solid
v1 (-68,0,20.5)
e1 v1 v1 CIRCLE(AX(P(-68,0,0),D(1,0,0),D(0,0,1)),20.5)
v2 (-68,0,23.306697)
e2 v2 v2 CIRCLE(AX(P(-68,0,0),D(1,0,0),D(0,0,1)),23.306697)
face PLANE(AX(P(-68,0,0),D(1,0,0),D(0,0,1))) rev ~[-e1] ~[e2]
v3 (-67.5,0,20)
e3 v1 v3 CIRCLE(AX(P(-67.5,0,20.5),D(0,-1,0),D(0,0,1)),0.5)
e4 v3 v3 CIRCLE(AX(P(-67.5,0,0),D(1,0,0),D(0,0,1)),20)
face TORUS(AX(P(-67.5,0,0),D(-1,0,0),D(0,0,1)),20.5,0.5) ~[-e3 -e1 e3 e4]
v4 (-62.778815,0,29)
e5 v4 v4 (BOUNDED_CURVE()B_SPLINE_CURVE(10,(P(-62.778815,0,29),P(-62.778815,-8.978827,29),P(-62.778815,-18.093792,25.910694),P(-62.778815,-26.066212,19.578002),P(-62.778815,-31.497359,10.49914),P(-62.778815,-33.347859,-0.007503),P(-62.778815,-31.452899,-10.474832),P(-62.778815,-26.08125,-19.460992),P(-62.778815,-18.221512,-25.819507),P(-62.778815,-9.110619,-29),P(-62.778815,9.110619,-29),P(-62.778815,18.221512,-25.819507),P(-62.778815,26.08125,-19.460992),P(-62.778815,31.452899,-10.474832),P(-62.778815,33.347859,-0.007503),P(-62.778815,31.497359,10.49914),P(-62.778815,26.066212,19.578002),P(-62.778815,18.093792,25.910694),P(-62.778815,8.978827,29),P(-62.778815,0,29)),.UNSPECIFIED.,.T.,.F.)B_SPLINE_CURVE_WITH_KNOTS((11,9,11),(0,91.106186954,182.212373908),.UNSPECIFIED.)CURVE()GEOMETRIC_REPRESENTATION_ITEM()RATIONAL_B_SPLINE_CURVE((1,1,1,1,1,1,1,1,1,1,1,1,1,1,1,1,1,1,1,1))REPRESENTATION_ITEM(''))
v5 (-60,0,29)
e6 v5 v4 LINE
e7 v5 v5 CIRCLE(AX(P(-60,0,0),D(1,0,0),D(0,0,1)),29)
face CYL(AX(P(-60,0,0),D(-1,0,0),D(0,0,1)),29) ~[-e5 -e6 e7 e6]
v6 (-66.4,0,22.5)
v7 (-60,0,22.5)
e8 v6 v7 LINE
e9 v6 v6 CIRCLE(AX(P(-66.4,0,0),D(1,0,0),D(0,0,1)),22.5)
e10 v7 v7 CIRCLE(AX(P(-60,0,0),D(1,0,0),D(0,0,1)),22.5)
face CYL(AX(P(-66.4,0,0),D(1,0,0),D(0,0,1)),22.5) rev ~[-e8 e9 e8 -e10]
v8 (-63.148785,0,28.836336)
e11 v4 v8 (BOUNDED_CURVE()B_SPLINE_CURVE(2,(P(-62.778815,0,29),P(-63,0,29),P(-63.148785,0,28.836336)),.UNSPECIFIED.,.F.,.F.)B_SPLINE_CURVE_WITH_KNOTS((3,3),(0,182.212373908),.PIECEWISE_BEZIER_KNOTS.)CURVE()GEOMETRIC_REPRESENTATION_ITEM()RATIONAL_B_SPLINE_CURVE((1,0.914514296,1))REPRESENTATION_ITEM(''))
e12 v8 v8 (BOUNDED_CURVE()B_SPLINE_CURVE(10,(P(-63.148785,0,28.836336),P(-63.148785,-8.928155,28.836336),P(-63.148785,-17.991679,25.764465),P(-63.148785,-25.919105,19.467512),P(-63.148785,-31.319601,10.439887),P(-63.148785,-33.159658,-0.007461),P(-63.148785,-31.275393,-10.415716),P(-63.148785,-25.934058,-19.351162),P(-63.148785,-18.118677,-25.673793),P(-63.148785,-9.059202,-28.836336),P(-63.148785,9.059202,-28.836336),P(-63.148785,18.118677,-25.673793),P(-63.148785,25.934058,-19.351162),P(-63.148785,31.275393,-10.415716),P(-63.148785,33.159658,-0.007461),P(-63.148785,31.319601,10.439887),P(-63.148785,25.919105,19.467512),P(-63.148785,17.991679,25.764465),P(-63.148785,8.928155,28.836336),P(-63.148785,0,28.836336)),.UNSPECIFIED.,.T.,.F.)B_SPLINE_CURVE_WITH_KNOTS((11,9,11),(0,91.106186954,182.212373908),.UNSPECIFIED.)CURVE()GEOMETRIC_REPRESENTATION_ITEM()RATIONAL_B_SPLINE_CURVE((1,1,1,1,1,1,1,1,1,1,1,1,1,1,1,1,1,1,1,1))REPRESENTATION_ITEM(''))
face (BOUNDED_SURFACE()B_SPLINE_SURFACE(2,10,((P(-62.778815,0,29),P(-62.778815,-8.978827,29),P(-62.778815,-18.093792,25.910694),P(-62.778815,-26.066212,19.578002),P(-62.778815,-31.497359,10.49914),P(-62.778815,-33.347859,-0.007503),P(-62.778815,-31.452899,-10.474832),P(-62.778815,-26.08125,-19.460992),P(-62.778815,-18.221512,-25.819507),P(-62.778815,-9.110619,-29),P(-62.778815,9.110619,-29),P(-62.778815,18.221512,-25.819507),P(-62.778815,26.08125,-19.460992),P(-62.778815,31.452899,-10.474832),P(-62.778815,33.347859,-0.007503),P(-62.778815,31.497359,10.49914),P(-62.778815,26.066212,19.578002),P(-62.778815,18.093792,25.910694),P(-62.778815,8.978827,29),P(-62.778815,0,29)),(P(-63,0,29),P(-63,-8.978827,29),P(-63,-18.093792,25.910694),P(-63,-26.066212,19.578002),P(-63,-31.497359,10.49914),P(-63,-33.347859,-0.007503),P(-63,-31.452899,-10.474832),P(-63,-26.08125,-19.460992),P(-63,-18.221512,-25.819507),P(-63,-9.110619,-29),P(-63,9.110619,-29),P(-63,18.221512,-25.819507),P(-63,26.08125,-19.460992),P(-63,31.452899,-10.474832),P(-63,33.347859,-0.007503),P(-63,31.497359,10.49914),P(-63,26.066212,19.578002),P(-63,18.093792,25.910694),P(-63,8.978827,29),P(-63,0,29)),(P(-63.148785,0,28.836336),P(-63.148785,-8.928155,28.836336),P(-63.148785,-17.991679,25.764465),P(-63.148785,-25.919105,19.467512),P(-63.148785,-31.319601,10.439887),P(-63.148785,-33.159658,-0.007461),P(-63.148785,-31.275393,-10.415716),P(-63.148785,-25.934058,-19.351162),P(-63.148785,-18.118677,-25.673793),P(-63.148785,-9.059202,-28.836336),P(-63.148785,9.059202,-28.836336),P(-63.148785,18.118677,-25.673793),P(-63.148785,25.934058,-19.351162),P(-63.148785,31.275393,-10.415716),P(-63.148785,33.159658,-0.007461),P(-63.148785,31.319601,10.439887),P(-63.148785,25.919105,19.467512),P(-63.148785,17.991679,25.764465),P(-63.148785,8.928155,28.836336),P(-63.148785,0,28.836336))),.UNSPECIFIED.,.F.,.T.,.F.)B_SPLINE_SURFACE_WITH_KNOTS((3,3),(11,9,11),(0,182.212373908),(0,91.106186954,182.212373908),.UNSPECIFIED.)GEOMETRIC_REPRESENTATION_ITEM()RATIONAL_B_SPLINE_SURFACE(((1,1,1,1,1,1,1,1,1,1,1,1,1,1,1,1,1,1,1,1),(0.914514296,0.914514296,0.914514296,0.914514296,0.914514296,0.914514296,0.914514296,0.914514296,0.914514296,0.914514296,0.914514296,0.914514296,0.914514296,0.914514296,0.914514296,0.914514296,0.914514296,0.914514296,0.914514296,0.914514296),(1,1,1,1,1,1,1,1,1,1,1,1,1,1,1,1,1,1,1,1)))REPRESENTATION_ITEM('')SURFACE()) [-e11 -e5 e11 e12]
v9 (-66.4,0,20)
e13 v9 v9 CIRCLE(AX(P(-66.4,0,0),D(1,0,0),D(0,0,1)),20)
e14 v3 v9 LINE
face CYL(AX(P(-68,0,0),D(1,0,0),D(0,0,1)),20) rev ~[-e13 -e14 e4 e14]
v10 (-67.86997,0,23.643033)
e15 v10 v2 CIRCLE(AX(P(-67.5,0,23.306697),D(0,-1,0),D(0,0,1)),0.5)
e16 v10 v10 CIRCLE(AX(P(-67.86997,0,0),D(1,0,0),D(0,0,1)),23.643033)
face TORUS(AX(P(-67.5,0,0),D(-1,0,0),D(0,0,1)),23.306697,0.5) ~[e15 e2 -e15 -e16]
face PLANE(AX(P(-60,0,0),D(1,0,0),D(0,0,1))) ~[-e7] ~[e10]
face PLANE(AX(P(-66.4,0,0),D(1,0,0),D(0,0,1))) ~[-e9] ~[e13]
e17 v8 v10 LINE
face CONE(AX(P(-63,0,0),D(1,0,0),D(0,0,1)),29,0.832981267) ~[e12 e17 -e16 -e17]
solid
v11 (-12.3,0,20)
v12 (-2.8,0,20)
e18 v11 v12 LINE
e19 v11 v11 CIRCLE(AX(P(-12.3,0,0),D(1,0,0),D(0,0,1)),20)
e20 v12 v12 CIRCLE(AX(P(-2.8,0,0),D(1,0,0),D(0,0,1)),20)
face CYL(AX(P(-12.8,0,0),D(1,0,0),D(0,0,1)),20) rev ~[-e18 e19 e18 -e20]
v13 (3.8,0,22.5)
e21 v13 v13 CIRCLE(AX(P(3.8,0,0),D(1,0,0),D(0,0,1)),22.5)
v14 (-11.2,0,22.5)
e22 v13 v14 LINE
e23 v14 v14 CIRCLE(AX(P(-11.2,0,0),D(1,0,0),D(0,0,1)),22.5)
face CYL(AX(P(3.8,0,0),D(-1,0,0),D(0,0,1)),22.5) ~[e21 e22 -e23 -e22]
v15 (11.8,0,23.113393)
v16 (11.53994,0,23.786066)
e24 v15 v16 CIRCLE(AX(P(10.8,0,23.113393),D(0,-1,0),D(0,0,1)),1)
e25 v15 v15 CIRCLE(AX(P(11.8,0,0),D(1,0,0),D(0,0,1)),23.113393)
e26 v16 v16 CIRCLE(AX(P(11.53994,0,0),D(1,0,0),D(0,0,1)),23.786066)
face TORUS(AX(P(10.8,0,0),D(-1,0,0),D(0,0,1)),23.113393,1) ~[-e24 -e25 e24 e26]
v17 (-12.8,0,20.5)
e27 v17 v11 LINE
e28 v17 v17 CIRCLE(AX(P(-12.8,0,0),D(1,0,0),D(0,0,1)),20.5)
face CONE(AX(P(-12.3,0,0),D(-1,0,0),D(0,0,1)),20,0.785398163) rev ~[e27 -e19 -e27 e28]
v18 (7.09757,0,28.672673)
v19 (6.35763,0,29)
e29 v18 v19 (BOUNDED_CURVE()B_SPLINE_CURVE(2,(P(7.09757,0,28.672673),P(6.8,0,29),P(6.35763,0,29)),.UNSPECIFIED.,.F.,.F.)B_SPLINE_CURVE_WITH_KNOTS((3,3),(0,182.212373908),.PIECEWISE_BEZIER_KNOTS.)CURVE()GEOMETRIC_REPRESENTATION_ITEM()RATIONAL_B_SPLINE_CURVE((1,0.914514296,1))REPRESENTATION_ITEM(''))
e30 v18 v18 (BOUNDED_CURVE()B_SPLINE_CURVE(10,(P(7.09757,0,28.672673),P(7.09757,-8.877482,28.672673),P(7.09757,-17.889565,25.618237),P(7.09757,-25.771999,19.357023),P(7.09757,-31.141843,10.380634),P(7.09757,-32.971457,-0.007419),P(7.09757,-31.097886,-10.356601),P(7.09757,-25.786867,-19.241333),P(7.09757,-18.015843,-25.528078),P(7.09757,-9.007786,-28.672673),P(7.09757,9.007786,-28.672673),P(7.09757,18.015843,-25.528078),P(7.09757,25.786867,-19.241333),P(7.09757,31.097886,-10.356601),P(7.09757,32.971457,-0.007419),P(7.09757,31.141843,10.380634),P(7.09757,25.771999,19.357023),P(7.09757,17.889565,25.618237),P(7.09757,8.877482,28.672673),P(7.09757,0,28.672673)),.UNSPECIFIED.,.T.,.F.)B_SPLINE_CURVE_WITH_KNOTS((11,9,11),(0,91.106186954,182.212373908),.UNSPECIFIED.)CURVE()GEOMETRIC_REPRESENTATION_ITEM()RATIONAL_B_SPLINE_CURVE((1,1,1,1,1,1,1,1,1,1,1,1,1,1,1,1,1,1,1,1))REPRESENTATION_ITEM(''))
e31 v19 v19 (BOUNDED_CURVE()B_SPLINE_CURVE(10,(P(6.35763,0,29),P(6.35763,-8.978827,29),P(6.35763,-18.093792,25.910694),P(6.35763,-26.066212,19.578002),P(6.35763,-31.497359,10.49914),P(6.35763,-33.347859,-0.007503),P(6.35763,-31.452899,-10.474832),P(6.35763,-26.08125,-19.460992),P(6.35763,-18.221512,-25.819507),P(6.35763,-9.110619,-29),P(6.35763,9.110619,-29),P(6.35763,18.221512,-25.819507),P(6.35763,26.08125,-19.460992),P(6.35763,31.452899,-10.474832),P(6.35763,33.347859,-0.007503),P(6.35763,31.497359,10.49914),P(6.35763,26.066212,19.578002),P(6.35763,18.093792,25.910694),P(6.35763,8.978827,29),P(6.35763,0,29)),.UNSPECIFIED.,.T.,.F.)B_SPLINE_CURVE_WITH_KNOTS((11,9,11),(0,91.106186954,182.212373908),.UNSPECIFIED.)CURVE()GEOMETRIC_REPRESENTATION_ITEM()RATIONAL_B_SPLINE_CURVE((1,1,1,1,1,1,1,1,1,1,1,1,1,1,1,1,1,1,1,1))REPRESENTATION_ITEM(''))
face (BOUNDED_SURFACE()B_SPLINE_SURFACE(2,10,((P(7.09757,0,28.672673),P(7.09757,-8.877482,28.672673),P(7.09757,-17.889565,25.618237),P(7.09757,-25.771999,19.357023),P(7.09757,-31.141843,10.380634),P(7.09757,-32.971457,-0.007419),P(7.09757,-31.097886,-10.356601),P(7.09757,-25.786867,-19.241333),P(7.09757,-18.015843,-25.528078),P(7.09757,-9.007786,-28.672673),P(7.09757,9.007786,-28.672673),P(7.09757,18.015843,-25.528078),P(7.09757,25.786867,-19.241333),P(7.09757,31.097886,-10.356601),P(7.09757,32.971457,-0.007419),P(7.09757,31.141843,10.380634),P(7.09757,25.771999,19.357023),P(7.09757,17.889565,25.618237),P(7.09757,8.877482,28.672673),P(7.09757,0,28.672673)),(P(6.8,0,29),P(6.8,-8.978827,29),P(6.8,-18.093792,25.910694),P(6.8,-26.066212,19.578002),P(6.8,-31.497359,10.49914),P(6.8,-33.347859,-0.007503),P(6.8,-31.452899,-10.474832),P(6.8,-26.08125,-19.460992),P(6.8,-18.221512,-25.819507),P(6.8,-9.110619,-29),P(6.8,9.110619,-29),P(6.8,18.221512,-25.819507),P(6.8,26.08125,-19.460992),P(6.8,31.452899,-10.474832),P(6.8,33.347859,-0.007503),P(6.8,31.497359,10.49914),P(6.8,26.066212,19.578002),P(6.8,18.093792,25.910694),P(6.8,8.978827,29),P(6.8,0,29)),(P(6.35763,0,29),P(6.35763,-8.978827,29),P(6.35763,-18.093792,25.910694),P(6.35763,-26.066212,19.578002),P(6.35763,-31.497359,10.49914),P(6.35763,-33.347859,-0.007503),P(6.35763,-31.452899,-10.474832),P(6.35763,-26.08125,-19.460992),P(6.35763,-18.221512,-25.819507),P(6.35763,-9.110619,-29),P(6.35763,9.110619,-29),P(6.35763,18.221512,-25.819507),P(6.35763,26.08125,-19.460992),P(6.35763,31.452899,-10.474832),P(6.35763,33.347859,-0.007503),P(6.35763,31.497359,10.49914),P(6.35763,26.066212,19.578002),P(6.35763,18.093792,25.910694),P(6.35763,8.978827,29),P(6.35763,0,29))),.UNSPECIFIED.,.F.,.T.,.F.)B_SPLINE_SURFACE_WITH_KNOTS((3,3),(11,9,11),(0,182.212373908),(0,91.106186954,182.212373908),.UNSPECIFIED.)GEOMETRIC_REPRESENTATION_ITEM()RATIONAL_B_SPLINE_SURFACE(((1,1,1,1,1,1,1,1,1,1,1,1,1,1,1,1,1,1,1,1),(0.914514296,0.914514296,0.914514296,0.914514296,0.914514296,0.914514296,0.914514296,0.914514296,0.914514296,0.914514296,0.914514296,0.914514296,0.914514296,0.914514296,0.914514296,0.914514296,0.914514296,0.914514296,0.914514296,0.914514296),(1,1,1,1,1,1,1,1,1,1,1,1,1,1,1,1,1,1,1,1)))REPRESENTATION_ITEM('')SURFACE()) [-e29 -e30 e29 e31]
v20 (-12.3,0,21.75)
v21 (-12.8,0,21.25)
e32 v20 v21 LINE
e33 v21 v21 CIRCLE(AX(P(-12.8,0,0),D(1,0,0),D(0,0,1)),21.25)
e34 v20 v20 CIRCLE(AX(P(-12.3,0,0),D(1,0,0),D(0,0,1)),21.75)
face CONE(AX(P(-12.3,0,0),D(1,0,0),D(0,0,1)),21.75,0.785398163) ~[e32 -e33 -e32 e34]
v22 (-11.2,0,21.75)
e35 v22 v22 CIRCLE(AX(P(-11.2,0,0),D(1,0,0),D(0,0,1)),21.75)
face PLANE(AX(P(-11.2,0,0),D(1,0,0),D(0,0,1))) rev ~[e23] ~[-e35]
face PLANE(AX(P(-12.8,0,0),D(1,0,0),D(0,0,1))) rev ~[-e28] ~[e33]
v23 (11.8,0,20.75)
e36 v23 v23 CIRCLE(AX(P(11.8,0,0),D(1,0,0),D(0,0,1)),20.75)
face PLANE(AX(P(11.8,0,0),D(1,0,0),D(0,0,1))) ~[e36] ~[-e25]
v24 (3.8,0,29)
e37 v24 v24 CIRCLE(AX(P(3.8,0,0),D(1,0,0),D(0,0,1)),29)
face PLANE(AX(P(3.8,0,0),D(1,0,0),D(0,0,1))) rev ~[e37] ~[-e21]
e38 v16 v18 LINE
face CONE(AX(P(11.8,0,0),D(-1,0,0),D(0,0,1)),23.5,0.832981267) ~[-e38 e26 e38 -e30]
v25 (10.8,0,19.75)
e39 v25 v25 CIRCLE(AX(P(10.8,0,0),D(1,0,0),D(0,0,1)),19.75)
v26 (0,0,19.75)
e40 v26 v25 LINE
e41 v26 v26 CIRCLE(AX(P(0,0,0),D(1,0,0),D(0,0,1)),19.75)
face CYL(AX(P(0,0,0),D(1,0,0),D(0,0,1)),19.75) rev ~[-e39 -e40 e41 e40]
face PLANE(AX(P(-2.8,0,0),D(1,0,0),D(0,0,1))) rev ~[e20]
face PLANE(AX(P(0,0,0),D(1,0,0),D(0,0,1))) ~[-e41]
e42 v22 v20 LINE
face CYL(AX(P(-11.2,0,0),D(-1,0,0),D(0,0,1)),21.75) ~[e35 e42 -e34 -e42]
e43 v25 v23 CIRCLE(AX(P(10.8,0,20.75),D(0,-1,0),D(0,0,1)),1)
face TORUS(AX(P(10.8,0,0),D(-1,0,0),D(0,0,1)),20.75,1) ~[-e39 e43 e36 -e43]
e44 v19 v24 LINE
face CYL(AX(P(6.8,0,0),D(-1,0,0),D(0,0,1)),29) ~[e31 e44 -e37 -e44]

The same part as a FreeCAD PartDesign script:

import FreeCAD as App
import Part
import Sketcher
from FreeCAD import Vector
Q = App.Units.Quantity


def edges_at(feature, points):
    """Names of the edges that pass closest to the given points."""
    edges = feature.Shape.Edges
    near = lambda p: min(range(len(edges)), key=lambda i: edges[i].distToShape(Part.Vertex(*p))[0])
    return sorted({f"Edge{near(p) + 1}" for p in points})


def add_polygon(sketch, points):
    """Adds a closed chain of lines whose ends are joined by coincident constraints."""
    first, n = sketch.GeometryCount, len(points)
    for a, b in zip(points, points[1:] + points[:1]):
        sketch.addGeometry(Part.LineSegment(App.Vector(*a, 0), App.Vector(*b, 0)), False)
    for i in range(n):
        sketch.addConstraint(Sketcher.Constraint("Coincident", first + i, 2, first + (i + 1) % n, 1))

doc = App.newDocument("Part")
body = doc.addObject("PartDesign::Body", "Body")

sketch1 = body.newObject("Sketcher::SketchObject", "Sketch")
sketch1.AttachmentSupport = (doc.getObject("XZ_Plane"), [""])
sketch1.MapMode = "FlatFace"
add_polygon(sketch1, [(-2.8, 0), (0, 0), (0, 19.8), (11.8, 19.8), (11.8, 23.5), (6.8, 29), (3.8, 29), (3.8, 22.5), (-11.2, 22.5), (-11.2, 21.8), (-12.8, 21.8), (-12.8, 20), (-2.8, 20)])
sketch1.addConstraint([
    Sketcher.Constraint("Horizontal", 0),
    Sketcher.Constraint("Vertical", 1),
    Sketcher.Constraint("Horizontal", 2),
    Sketcher.Constraint("Vertical", 3),
    Sketcher.Constraint("Horizontal", 5),
    Sketcher.Constraint("Vertical", 6),
    Sketcher.Constraint("Horizontal", 7),
    Sketcher.Constraint("Vertical", 8),
    Sketcher.Constraint("Horizontal", 9),
    Sketcher.Constraint("Vertical", 10),
    Sketcher.Constraint("Horizontal", 11),
    Sketcher.Constraint("Vertical", 12),
    Sketcher.Constraint("Coincident", 0, 2, -1, 1),
    Sketcher.Constraint("DistanceX", 5, 2, 5, 1, Q("3 mm")),
    Sketcher.Constraint("DistanceX", 7, 2, 7, 1, Q("15 mm")),
    Sketcher.Constraint("DistanceX", 11, 1, 11, 2, Q("10 mm")),
    Sketcher.Constraint("DistanceY", 12, 2, 12, 1, Q("20 mm")),
    Sketcher.Constraint("DistanceX", 0, 1, 0, 2, Q("2.8 mm")),
    Sketcher.Constraint("DistanceX", 2, 1, 2, 2, Q("11.8 mm")),
    Sketcher.Constraint("DistanceX", 9, 2, 9, 1, Q("1.6 mm")),
    Sketcher.Constraint("DistanceY", 6, 2, 6, 1, Q("6.5 mm")),
    Sketcher.Constraint("DistanceY", -1, 1, 4, 2, Q("29 mm")),
    Sketcher.Constraint("DistanceY", 6, 2, 3, 2, Q("1 mm")),
    Sketcher.Constraint("DistanceY", 1, 2, 8, 2, Q("2 mm")),
    Sketcher.Constraint("DistanceY", 1, 1, 1, 2, Q("19.75 mm")),
])
revolution = body.newObject("PartDesign::Revolution", "Revolution")
revolution.Profile = sketch1
revolution.ReferenceAxis = (sketch1, ["H_Axis"])
revolution.Angle = 360
doc.recompute()

fillet = body.newObject("PartDesign::Fillet", "Fillet")
fillet.Base = (revolution, edges_at(revolution, [(11.8, 0, -23.5), (11.8, 0, -19.75), (6.8, 0, -29)]))
fillet.Radius = 1
doc.recompute()

chamfer = body.newObject("PartDesign::Chamfer", "Chamfer")
chamfer.Base = (fillet, edges_at(fillet, [(-12.8, 0, -21.75), (-12.8, 0, -20)]))
chamfer.Size = 0.5
body2 = doc.addObject("PartDesign::Body", "Body001")

sketch2 = body2.newObject("Sketcher::SketchObject", "Sketch001")
sketch2.AttachmentSupport = (doc.getObject("XZ_Plane001"), [""])
sketch2.MapMode = "FlatFace"
add_polygon(sketch2, [(-66.4, 22.5), (-60, 22.5), (-60, 29), (-63, 29), (-68, 23.5), (-68, 20), (-66.4, 20)])
sketch2.addConstraint([
    Sketcher.Constraint("Horizontal", 0),
    Sketcher.Constraint("Vertical", 1),
    Sketcher.Constraint("Horizontal", 2),
    Sketcher.Constraint("Vertical", 4),
    Sketcher.Constraint("Horizontal", 5),
    Sketcher.Constraint("Vertical", 6),
    Sketcher.Constraint("DistanceX", 2, 2, 2, 1, Q("3 mm")),
    Sketcher.Constraint("DistanceX", 0, 1, 0, 2, Q("6.4 mm")),
    Sketcher.Constraint("DistanceX", 5, 1, 5, 2, Q("1.6 mm")),
    Sketcher.Constraint("DistanceY", 1, 1, 1, 2, Q("6.5 mm")),
    Sketcher.Constraint("DistanceY", 4, 2, 4, 1, Q("3.5 mm")),
    Sketcher.Constraint("DistanceY", 6, 1, 6, 2, Q("2.5 mm")),
    Sketcher.Constraint("DistanceX", 0, 2, -1, 1, Q("60 mm")),
    Sketcher.Constraint("DistanceY", -1, 1, 1, 2, Q("29 mm")),
])
revolution2 = body2.newObject("PartDesign::Revolution", "Revolution001")
revolution2.Profile = sketch2
revolution2.ReferenceAxis = (sketch2, ["H_Axis"])
revolution2.Angle = 360
doc.recompute()

fillet2 = body2.newObject("PartDesign::Fillet", "Fillet001")
fillet2.Base = (revolution2, edges_at(revolution2, [(-68, 0, -23.5), (-63, 0, -29), (-68, 0, -20)]))
fillet2.Radius = 0.5

doc.recompute()
